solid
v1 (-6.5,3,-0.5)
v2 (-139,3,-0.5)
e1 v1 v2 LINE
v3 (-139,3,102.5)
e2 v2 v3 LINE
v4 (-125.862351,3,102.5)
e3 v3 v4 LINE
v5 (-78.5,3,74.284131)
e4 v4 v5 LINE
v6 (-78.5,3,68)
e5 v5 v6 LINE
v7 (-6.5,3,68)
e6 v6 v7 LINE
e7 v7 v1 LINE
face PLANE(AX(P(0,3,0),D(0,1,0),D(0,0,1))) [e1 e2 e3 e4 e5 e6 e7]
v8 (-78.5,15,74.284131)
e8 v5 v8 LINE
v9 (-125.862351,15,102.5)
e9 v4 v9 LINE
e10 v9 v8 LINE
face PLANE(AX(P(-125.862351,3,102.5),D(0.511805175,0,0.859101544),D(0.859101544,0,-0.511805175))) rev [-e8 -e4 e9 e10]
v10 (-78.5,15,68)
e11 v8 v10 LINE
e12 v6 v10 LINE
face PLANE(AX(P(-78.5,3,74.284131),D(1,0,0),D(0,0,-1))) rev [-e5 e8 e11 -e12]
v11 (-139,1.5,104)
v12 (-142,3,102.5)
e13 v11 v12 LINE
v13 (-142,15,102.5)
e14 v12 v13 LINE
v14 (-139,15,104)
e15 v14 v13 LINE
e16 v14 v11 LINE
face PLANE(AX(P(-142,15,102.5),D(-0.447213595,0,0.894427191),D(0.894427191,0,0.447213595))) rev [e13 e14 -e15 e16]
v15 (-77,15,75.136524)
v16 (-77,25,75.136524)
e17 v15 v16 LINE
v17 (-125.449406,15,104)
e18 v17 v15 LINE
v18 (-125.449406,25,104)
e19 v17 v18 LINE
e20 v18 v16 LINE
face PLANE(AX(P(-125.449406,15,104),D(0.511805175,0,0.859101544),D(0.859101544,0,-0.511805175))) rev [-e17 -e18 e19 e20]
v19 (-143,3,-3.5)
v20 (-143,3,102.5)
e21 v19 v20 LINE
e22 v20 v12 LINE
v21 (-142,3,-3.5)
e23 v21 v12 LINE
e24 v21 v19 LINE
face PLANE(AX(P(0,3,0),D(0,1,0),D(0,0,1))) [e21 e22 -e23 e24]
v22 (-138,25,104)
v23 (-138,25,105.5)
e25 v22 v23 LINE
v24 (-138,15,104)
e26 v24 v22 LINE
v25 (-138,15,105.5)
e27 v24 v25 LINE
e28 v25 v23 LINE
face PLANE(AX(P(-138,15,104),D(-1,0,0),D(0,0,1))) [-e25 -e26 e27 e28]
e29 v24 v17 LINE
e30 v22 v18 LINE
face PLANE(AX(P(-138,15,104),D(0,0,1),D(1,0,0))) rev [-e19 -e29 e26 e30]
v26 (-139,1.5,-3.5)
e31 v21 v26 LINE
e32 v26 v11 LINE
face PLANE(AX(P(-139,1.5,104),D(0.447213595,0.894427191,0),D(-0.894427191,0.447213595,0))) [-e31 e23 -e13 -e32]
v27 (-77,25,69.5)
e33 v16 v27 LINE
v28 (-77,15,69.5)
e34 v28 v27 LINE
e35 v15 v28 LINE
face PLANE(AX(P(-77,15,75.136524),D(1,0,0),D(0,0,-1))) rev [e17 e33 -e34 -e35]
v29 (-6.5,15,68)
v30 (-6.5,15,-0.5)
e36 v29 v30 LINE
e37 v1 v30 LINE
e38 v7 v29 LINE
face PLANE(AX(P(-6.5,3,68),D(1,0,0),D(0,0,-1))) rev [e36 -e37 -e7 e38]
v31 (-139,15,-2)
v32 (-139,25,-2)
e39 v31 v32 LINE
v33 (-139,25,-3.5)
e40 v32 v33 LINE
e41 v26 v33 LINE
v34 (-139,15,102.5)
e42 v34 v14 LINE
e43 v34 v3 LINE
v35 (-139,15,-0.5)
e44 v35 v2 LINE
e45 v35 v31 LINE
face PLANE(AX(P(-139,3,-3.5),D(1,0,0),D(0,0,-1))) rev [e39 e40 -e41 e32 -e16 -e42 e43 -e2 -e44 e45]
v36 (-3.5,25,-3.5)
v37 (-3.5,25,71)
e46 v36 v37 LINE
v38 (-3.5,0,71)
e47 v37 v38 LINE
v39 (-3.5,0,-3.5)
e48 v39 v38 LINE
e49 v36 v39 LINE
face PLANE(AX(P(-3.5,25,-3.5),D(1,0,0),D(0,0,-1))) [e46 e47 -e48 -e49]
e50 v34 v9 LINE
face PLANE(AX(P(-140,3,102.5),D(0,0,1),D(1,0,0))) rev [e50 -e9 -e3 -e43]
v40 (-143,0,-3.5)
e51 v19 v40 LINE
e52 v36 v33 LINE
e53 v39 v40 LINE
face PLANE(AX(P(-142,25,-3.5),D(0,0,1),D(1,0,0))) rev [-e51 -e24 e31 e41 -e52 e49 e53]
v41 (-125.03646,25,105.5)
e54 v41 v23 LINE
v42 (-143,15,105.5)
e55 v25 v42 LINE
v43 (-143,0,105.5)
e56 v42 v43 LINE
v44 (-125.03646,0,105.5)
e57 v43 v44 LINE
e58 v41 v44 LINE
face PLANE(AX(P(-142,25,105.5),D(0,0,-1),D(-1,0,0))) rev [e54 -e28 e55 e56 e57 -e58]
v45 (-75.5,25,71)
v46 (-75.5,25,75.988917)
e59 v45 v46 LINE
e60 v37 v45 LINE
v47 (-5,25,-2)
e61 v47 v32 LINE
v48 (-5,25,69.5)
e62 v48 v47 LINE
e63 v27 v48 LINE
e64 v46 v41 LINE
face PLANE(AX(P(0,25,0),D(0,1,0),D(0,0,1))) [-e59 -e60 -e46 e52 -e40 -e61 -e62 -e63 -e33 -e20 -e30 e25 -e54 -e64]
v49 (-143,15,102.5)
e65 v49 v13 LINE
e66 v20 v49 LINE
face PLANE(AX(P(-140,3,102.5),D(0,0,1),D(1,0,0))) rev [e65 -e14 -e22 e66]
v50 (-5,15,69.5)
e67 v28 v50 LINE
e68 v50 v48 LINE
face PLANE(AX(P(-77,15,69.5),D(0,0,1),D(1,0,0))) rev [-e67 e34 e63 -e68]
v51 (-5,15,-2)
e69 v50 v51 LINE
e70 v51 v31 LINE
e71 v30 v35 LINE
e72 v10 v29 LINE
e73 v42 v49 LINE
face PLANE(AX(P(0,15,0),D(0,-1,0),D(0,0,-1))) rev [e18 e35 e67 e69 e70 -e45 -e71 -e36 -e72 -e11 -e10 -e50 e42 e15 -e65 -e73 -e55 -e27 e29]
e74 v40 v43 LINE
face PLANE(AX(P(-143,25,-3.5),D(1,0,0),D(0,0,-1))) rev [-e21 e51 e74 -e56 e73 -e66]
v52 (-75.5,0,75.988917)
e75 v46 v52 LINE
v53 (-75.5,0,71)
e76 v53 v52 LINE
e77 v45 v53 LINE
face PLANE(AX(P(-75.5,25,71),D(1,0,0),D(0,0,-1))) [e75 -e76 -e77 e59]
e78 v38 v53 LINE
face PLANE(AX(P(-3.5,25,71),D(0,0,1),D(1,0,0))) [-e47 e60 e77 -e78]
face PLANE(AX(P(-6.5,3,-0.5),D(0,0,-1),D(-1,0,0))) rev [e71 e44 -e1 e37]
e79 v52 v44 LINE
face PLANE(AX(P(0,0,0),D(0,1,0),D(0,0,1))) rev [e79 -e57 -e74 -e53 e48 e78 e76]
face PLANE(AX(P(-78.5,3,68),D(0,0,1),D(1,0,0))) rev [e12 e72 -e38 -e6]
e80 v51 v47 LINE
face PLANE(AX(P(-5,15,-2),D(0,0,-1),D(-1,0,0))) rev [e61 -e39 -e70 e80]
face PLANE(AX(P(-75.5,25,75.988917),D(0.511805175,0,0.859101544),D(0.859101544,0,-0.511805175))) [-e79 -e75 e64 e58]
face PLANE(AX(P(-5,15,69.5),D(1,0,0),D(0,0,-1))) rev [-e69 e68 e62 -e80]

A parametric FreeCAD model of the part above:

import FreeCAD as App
import Part
import Sketcher

V = App.Vector
Q = App.Units.Quantity

doc = App.newDocument("Part")
body = doc.addObject("PartDesign::Body", "Body")

sketch1 = body.newObject("Sketcher::SketchObject", "Sketch")
sketch1.AttachmentSupport = (doc.getObject("XZ_Plane"), [""])
sketch1.MapMode = "FlatFace"
sketch1.addGeometry([
    Part.LineSegment(V(-3.5, 71, 0), V(-3.5, -3.5, 0)),
    Part.LineSegment(V(-3.5, -3.5, 0), V(-143, -3.5, 0)),
    Part.LineSegment(V(-143, -3.5, 0), V(-143, 105.5, 0)),
    Part.LineSegment(V(-143, 105.5, 0), V(-125.03646, 105.5, 0)),
    Part.LineSegment(V(-125.03646, 105.5, 0), V(-75.5, 75.988917, 0)),
    Part.LineSegment(V(-75.5, 75.988917, 0), V(-75.5, 71, 0)),
    Part.LineSegment(V(-75.5, 71, 0), V(-3.5, 71, 0)),
], False)
sketch1.addConstraint([
    Sketcher.Constraint("Coincident", 0, 2, 1, 1),
    Sketcher.Constraint("Coincident", 1, 2, 2, 1),
    Sketcher.Constraint("Coincident", 2, 2, 3, 1),
    Sketcher.Constraint("Coincident", 3, 2, 4, 1),
    Sketcher.Constraint("Coincident", 4, 2, 5, 1),
    Sketcher.Constraint("Coincident", 5, 2, 6, 1),
    Sketcher.Constraint("Coincident", 6, 2, 0, 1),
    Sketcher.Constraint("Vertical", 0),
    Sketcher.Constraint("Horizontal", 1),
    Sketcher.Constraint("Vertical", 2),
    Sketcher.Constraint("Horizontal", 3),
    Sketcher.Constraint("Vertical", 5),
    Sketcher.Constraint("Horizontal", 6),
    Sketcher.Constraint("DistanceX", 6, 1, 6, 2, Q("72 mm")),
    Sketcher.Constraint("DistanceY", 2, 1, 2, 2, Q("109 mm")),
    Sketcher.Constraint("DistanceX", 1, 2, 1, 1, Q("139.5 mm")),
    Sketcher.Constraint("DistanceY", 0, 2, 0, 1, Q("74.5 mm")),
    Sketcher.Constraint("DistanceX", 1, 2, -1, 1, Q("143 mm")),
    Sketcher.Constraint("DistanceY", -1, 1, 5, 2, Q("71 mm")),
    Sketcher.Constraint("DistanceX", 3, 1, 3, 2, Q("17.96354 mm")),
    Sketcher.Constraint("DistanceY", 5, 2, 5, 1, Q("4.988917 mm")),
])
pad1 = body.newObject("PartDesign::Pad", "Pad")
pad1.Profile = sketch1
pad1.Length = 25
pad1.Reversed = True

sketch2 = body.newObject("Sketcher::SketchObject", "Sketch001")
sketch2.AttachmentSupport = (doc.getObject("XZ_Plane"), [""])
sketch2.MapMode = "FlatFace"
sketch2.AttachmentOffset = App.Placement(V(0, 0, -25), App.Rotation())
sketch2.addGeometry([
    Part.LineSegment(V(-6.5, -0.5, 0), V(-140, -0.5, 0)),
    Part.LineSegment(V(-140, -0.5, 0), V(-140, 102.5, 0)),
    Part.LineSegment(V(-140, 102.5, 0), V(-125.862351, 102.5, 0)),
    Part.LineSegment(V(-125.862351, 102.5, 0), V(-78.5, 74.284131, 0)),
    Part.LineSegment(V(-78.5, 74.284131, 0), V(-78.5, 68, 0)),
    Part.LineSegment(V(-78.5, 68, 0), V(-6.5, 68, 0)),
    Part.LineSegment(V(-6.5, 68, 0), V(-6.5, -0.5, 0)),
], False)
sketch2.addConstraint([
    Sketcher.Constraint("Coincident", 0, 2, 1, 1),
    Sketcher.Constraint("Coincident", 1, 2, 2, 1),
    Sketcher.Constraint("Coincident", 2, 2, 3, 1),
    Sketcher.Constraint("Coincident", 3, 2, 4, 1),
    Sketcher.Constraint("Coincident", 4, 2, 5, 1),
    Sketcher.Constraint("Coincident", 5, 2, 6, 1),
    Sketcher.Constraint("Coincident", 6, 2, 0, 1),
    Sketcher.Constraint("Horizontal", 0),
    Sketcher.Constraint("Vertical", 1),
    Sketcher.Constraint("Horizontal", 2),
    Sketcher.Constraint("Vertical", 4),
    Sketcher.Constraint("Horizontal", 5),
    Sketcher.Constraint("Vertical", 6),
    Sketcher.Constraint("DistanceX", 5, 1, 5, 2, Q("72 mm")),
    Sketcher.Constraint("DistanceY", 1, 1, 1, 2, Q("103 mm")),
    Sketcher.Constraint("DistanceX", 0, 2, 0, 1, Q("133.5 mm")),
    Sketcher.Constraint("DistanceY", 6, 2, 6, 1, Q("68.5 mm")),
    Sketcher.Constraint("DistanceX", 0, 2, -1, 1, Q("140 mm")),
    Sketcher.Constraint("DistanceY", -1, 1, 4, 2, Q("68 mm")),
    Sketcher.Constraint("DistanceX", 2, 1, 2, 2, Q("14.137649 mm")),
    Sketcher.Constraint("DistanceY", 4, 2, 4, 1, Q("6.284131 mm")),
])
pocket1 = body.newObject("PartDesign::Pocket", "Pocket")
pocket1.Profile = sketch2
pocket1.Length = 22
pocket1.Reversed = True

sketch3 = body.newObject("Sketcher::SketchObject", "Sketch002")
sketch3.AttachmentSupport = (doc.getObject("XZ_Plane"), [""])
sketch3.MapMode = "FlatFace"
sketch3.AttachmentOffset = App.Placement(V(0, 0, -25), App.Rotation())
sketch3.addGeometry([
    Part.LineSegment(V(-143, -3.5, 0), V(-143, 102.5, 0)),
    Part.LineSegment(V(-143, 102.5, 0), V(-139, 102.5, 0)),
    Part.LineSegment(V(-139, 102.5, 0), V(-139, -3.5, 0)),
    Part.LineSegment(V(-139, -3.5, 0), V(-143, -3.5, 0)),
], False)
sketch3.addConstraint([
    Sketcher.Constraint("Coincident", 0, 2, 1, 1),
    Sketcher.Constraint("Coincident", 1, 2, 2, 1),
    Sketcher.Constraint("Coincident", 2, 2, 3, 1),
    Sketcher.Constraint("Coincident", 3, 2, 0, 1),
    Sketcher.Constraint("Vertical", 0),
    Sketcher.Constraint("Horizontal", 1),
    Sketcher.Constraint("Vertical", 2),
    Sketcher.Constraint("Horizontal", 3),
    Sketcher.Constraint("DistanceX", 1, 1, 1, 2, Q("4 mm")),
    Sketcher.Constraint("DistanceY", 0, 1, 0, 2, Q("106 mm")),
    Sketcher.Constraint("DistanceX", 0, 2, -1, 1, Q("143 mm")),
    Sketcher.Constraint("DistanceY", -1, 1, 0, 2, Q("102.5 mm")),
])
pocket2 = body.newObject("PartDesign::Pocket", "Pocket001")
pocket2.Profile = sketch3
pocket2.Length = 22
pocket2.Reversed = True

sketch4 = body.newObject("Sketcher::SketchObject", "Sketch003")
sketch4.AttachmentSupport = (doc.getObject("XZ_Plane"), [""])
sketch4.MapMode = "FlatFace"
sketch4.AttachmentOffset = App.Placement(V(0, 0, -3), App.Rotation())
sketch4.addGeometry([
    Part.LineSegment(V(-142, -3.5, 0), V(-142, 102.5, 0)),
    Part.LineSegment(V(-142, 102.5, 0), V(-139, 102.5, 0)),
    Part.LineSegment(V(-139, 102.5, 0), V(-139, -3.5, 0)),
    Part.LineSegment(V(-139, -3.5, 0), V(-142, -3.5, 0)),
], False)
sketch4.addConstraint([
    Sketcher.Constraint("Coincident", 0, 2, 1, 1),
    Sketcher.Constraint("Coincident", 1, 2, 2, 1),
    Sketcher.Constraint("Coincident", 2, 2, 3, 1),
    Sketcher.Constraint("Coincident", 3, 2, 0, 1),
    Sketcher.Constraint("Vertical", 0),
    Sketcher.Constraint("Horizontal", 1),
    Sketcher.Constraint("Vertical", 2),
    Sketcher.Constraint("Horizontal", 3),
    Sketcher.Constraint("DistanceX", 1, 1, 1, 2, Q("3 mm")),
    Sketcher.Constraint("DistanceY", 0, 1, 0, 2, Q("106 mm")),
    Sketcher.Constraint("DistanceX", 0, 2, -1, 1, Q("142 mm")),
    Sketcher.Constraint("DistanceY", -1, 1, 0, 2, Q("102.5 mm")),
])
pocket3 = body.newObject("PartDesign::Pocket", "Pocket002")
pocket3.Profile = sketch4
pocket3.Length = 1.5
pocket3.Reversed = True

sketch5 = body.newObject("Sketcher::SketchObject", "Sketch004")
sketch5.AttachmentSupport = (doc.getObject("XY_Plane"), [""])
sketch5.MapMode = "FlatFace"
sketch5.AttachmentOffset = App.Placement(V(0, 0, 102.5), App.Rotation())
sketch5.addGeometry([
    Part.LineSegment(V(-139, 25, 0), V(-139, 1.5, 0)),
    Part.LineSegment(V(-139, 1.5, 0), V(-142, 1.5, 0)),
    Part.LineSegment(V(-142, 1.5, 0), V(-142, 25, 0)),
    Part.LineSegment(V(-142, 25, 0), V(-139, 25, 0)),
], False)
sketch5.addConstraint([
    Sketcher.Constraint("Coincident", 0, 2, 1, 1),
    Sketcher.Constraint("Coincident", 1, 2, 2, 1),
    Sketcher.Constraint("Coincident", 2, 2, 3, 1),
    Sketcher.Constraint("Coincident", 3, 2, 0, 1),
    Sketcher.Constraint("Vertical", 0),
    Sketcher.Constraint("Horizontal", 1),
    Sketcher.Constraint("Vertical", 2),
    Sketcher.Constraint("Horizontal", 3),
    Sketcher.Constraint("DistanceX", 1, 2, 1, 1, Q("3 mm")),
    Sketcher.Constraint("DistanceY", 0, 2, 0, 1, Q("23.5 mm")),
    Sketcher.Constraint("DistanceX", 0, 2, -1, 1, Q("139 mm")),
    Sketcher.Constraint("DistanceY", -1, 1, 2, 2, Q("25 mm")),
])
pocket4 = body.newObject("PartDesign::Pocket", "Pocket003")
pocket4.Profile = sketch5
pocket4.Length = 1.5
pocket4.Reversed = True

sketch6 = body.newObject("Sketcher::SketchObject", "Sketch005")
sketch6.AttachmentSupport = (doc.getObject("XZ_Plane"), [""])
sketch6.MapMode = "FlatFace"
sketch6.AttachmentOffset = App.Placement(V(0, 0, -25), App.Rotation())
sketch6.addGeometry([
    Part.LineSegment(V(-143, 105.5, 0), V(-138, 105.5, 0)),
    Part.LineSegment(V(-138, 105.5, 0), V(-138, 104, 0)),
    Part.LineSegment(V(-138, 104, 0), V(-125.449406, 104, 0)),
    Part.LineSegment(V(-125.449406, 104, 0), V(-77, 75.136524, 0)),
    Part.LineSegment(V(-77, 75.136524, 0), V(-77, 69.5, 0)),
    Part.LineSegment(V(-77, 69.5, 0), V(-5, 69.5, 0)),
    Part.LineSegment(V(-5, 69.5, 0), V(-5, -2, 0)),
    Part.LineSegment(V(-5, -2, 0), V(-139, -2, 0)),
    Part.LineSegment(V(-139, -2, 0), V(-139, -0.5, 0)),
    Part.LineSegment(V(-139, -0.5, 0), V(-6.5, -0.5, 0)),
    Part.LineSegment(V(-6.5, -0.5, 0), V(-6.5, 68, 0)),
    Part.LineSegment(V(-6.5, 68, 0), V(-78.5, 68, 0)),
    Part.LineSegment(V(-78.5, 68, 0), V(-78.5, 74.284131, 0)),
    Part.LineSegment(V(-78.5, 74.284131, 0), V(-125.862351, 102.5, 0)),
    Part.LineSegment(V(-125.862351, 102.5, 0), V(-139, 102.5, 0)),
    Part.LineSegment(V(-139, 102.5, 0), V(-139, 104, 0)),
    Part.LineSegment(V(-139, 104, 0), V(-142, 104, 0)),
    Part.LineSegment(V(-142, 104, 0), V(-142, 102.5, 0)),
    Part.LineSegment(V(-142, 102.5, 0), V(-143, 102.5, 0)),
    Part.LineSegment(V(-143, 102.5, 0), V(-143, 105.5, 0)),
], False)
sketch6.addConstraint([
    Sketcher.Constraint("Coincident", 0, 2, 1, 1),
    Sketcher.Constraint("Coincident", 1, 2, 2, 1),
    Sketcher.Constraint("Coincident", 2, 2, 3, 1),
    Sketcher.Constraint("Coincident", 3, 2, 4, 1),
    Sketcher.Constraint("Coincident", 4, 2, 5, 1),
    Sketcher.Constraint("Coincident", 5, 2, 6, 1),
    Sketcher.Constraint("Coincident", 6, 2, 7, 1),
    Sketcher.Constraint("Coincident", 7, 2, 8, 1),
    Sketcher.Constraint("Coincident", 8, 2, 9, 1),
    Sketcher.Constraint("Coincident", 9, 2, 10, 1),
    Sketcher.Constraint("Coincident", 10, 2, 11, 1),
    Sketcher.Constraint("Coincident", 11, 2, 12, 1),
    Sketcher.Constraint("Coincident", 12, 2, 13, 1),
    Sketcher.Constraint("Coincident", 13, 2, 14, 1),
    Sketcher.Constraint("Coincident", 14, 2, 15, 1),
    Sketcher.Constraint("Coincident", 15, 2, 16, 1),
    Sketcher.Constraint("Coincident", 16, 2, 17, 1),
    Sketcher.Constraint("Coincident", 17, 2, 18, 1),
    Sketcher.Constraint("Coincident", 18, 2, 19, 1),
    Sketcher.Constraint("Coincident", 19, 2, 0, 1),
    Sketcher.Constraint("Horizontal", 0),
    Sketcher.Constraint("Vertical", 1),
    Sketcher.Constraint("Horizontal", 2),
    Sketcher.Constraint("Vertical", 4),
    Sketcher.Constraint("Horizontal", 5),
    Sketcher.Constraint("Vertical", 6),
    Sketcher.Constraint("Horizontal", 7),
    Sketcher.Constraint("Vertical", 8),
    Sketcher.Constraint("Horizontal", 9),
    Sketcher.Constraint("Vertical", 10),
    Sketcher.Constraint("Horizontal", 11),
    Sketcher.Constraint("Vertical", 12),
    Sketcher.Constraint("Horizontal", 14),
    Sketcher.Constraint("Vertical", 15),
    Sketcher.Constraint("Horizontal", 16),
    Sketcher.Constraint("Vertical", 17),
    Sketcher.Constraint("Horizontal", 18),
    Sketcher.Constraint("Vertical", 19),
    Sketcher.Constraint("Parallel", 3, 13),
    Sketcher.Constraint("Horizontal", 2, 2, 15, 2),
    Sketcher.Constraint("Horizontal", 14, 2, 17, 2),
    Sketcher.Constraint("Vertical", 8, 2, 14, 2),
    Sketcher.Constraint("Equal", 5, 11),
    Sketcher.Constraint("Equal", 1, 8),
    Sketcher.Constraint("Equal", 8, 15),
    Sketcher.Constraint("Equal", 16, 19),
    Sketcher.Constraint("DistanceX", 0, 1, 0, 2, Q("5 mm")),
    Sketcher.Constraint("DistanceX", 5, 1, 5, 2, Q("72 mm")),
    Sketcher.Constraint("DistanceX", 7, 2, 7, 1, Q("134 mm")),
    Sketcher.Constraint("DistanceX", 16, 2, 16, 1, Q("3 mm")),
    Sketcher.Constraint("DistanceX", 18, 2, 18, 1, Q("1 mm")),
    Sketcher.Constraint("DistanceX", 9, 1, 9, 2, Q("132.5 mm")),
    Sketcher.Constraint("DistanceY", 6, 2, 6, 1, Q("71.5 mm")),
    Sketcher.Constraint("DistanceY", 10, 1, 10, 2, Q("68.5 mm")),
    Sketcher.Constraint("DistanceX", 0, 2, -1, 1, Q("138 mm")),
    Sketcher.Constraint("DistanceY", -1, 1, 1, 2, Q("104 mm")),
    Sketcher.Constraint("DistanceY", 6, 2, -1, 1, Q("2 mm")),
    Sketcher.Constraint("DistanceX", 14, 2, 14, 1, Q("13.137649 mm")),
    Sketcher.Constraint("DistanceY", 12, 1, 12, 2, Q("6.284131 mm")),
    Sketcher.Constraint("DistanceX", 2, 1, 2, 2, Q("12.550594 mm")),
])
pocket5 = body.newObject("PartDesign::Pocket", "Pocket004")
pocket5.Profile = sketch6
pocket5.Length = 10
pocket5.Reversed = True

sketch7 = body.newObject("Sketcher::SketchObject", "Sketch006")
sketch7.AttachmentSupport = (doc.getObject("XZ_Plane"), [""])
sketch7.MapMode = "FlatFace"
sketch7.AttachmentOffset = App.Placement(V(0, 0, -1.5), App.Rotation())
sketch7.addGeometry([
    Part.LineSegment(V(-139, 104, 0), V(-142, 102.5, 0)),
    Part.LineSegment(V(-142, 102.5, 0), V(-142, 104, 0)),
    Part.LineSegment(V(-142, 104, 0), V(-139, 104, 0)),
], False)
sketch7.addConstraint([
    Sketcher.Constraint("Coincident", 0, 2, 1, 1),
    Sketcher.Constraint("Coincident", 1, 2, 2, 1),
    Sketcher.Constraint("Coincident", 2, 2, 0, 1),
    Sketcher.Constraint("Vertical", 1),
    Sketcher.Constraint("Horizontal", 2),
    Sketcher.Constraint("DistanceX", 2, 1, 2, 2, Q("3 mm")),
    Sketcher.Constraint("DistanceY", 1, 1, 1, 2, Q("1.5 mm")),
    Sketcher.Constraint("DistanceX", 0, 2, -1, 1, Q("142 mm")),
    Sketcher.Constraint("DistanceY", -1, 1, 1, 2, Q("104 mm")),
])
pad2 = body.newObject("PartDesign::Pad", "Pad001")
pad2.Profile = sketch7
pad2.Length = 13.5
pad2.Reversed = True

sketch8 = body.newObject("Sketcher::SketchObject", "Sketch007")
sketch8.AttachmentSupport = (doc.getObject("XY_Plane"), [""])
sketch8.MapMode = "FlatFace"
sketch8.AttachmentOffset = App.Placement(V(0, 0, -3.5), App.Rotation())
sketch8.addGeometry([
    Part.LineSegment(V(-142, 3, 0), V(-139, 1.5, 0)),
    Part.LineSegment(V(-139, 1.5, 0), V(-142, 1.5, 0)),
    Part.LineSegment(V(-142, 1.5, 0), V(-142, 3, 0)),
], False)
sketch8.addConstraint([
    Sketcher.Constraint("Coincident", 0, 2, 1, 1),
    Sketcher.Constraint("Coincident", 1, 2, 2, 1),
    Sketcher.Constraint("Coincident", 2, 2, 0, 1),
    Sketcher.Constraint("Horizontal", 1),
    Sketcher.Constraint("Vertical", 2),
    Sketcher.Constraint("DistanceX", 1, 2, 1, 1, Q("3 mm")),
    Sketcher.Constraint("DistanceY", 2, 1, 2, 2, Q("1.5 mm")),
    Sketcher.Constraint("DistanceX", 0, 2, -1, 1, Q("139 mm")),
    Sketcher.Constraint("DistanceY", -1, 1, 2, 2, Q("3 mm")),
])
pad3 = body.newObject("PartDesign::Pad", "Pad002")
pad3.Profile = sketch8
pad3.Length = 107.5

doc.recompute()
